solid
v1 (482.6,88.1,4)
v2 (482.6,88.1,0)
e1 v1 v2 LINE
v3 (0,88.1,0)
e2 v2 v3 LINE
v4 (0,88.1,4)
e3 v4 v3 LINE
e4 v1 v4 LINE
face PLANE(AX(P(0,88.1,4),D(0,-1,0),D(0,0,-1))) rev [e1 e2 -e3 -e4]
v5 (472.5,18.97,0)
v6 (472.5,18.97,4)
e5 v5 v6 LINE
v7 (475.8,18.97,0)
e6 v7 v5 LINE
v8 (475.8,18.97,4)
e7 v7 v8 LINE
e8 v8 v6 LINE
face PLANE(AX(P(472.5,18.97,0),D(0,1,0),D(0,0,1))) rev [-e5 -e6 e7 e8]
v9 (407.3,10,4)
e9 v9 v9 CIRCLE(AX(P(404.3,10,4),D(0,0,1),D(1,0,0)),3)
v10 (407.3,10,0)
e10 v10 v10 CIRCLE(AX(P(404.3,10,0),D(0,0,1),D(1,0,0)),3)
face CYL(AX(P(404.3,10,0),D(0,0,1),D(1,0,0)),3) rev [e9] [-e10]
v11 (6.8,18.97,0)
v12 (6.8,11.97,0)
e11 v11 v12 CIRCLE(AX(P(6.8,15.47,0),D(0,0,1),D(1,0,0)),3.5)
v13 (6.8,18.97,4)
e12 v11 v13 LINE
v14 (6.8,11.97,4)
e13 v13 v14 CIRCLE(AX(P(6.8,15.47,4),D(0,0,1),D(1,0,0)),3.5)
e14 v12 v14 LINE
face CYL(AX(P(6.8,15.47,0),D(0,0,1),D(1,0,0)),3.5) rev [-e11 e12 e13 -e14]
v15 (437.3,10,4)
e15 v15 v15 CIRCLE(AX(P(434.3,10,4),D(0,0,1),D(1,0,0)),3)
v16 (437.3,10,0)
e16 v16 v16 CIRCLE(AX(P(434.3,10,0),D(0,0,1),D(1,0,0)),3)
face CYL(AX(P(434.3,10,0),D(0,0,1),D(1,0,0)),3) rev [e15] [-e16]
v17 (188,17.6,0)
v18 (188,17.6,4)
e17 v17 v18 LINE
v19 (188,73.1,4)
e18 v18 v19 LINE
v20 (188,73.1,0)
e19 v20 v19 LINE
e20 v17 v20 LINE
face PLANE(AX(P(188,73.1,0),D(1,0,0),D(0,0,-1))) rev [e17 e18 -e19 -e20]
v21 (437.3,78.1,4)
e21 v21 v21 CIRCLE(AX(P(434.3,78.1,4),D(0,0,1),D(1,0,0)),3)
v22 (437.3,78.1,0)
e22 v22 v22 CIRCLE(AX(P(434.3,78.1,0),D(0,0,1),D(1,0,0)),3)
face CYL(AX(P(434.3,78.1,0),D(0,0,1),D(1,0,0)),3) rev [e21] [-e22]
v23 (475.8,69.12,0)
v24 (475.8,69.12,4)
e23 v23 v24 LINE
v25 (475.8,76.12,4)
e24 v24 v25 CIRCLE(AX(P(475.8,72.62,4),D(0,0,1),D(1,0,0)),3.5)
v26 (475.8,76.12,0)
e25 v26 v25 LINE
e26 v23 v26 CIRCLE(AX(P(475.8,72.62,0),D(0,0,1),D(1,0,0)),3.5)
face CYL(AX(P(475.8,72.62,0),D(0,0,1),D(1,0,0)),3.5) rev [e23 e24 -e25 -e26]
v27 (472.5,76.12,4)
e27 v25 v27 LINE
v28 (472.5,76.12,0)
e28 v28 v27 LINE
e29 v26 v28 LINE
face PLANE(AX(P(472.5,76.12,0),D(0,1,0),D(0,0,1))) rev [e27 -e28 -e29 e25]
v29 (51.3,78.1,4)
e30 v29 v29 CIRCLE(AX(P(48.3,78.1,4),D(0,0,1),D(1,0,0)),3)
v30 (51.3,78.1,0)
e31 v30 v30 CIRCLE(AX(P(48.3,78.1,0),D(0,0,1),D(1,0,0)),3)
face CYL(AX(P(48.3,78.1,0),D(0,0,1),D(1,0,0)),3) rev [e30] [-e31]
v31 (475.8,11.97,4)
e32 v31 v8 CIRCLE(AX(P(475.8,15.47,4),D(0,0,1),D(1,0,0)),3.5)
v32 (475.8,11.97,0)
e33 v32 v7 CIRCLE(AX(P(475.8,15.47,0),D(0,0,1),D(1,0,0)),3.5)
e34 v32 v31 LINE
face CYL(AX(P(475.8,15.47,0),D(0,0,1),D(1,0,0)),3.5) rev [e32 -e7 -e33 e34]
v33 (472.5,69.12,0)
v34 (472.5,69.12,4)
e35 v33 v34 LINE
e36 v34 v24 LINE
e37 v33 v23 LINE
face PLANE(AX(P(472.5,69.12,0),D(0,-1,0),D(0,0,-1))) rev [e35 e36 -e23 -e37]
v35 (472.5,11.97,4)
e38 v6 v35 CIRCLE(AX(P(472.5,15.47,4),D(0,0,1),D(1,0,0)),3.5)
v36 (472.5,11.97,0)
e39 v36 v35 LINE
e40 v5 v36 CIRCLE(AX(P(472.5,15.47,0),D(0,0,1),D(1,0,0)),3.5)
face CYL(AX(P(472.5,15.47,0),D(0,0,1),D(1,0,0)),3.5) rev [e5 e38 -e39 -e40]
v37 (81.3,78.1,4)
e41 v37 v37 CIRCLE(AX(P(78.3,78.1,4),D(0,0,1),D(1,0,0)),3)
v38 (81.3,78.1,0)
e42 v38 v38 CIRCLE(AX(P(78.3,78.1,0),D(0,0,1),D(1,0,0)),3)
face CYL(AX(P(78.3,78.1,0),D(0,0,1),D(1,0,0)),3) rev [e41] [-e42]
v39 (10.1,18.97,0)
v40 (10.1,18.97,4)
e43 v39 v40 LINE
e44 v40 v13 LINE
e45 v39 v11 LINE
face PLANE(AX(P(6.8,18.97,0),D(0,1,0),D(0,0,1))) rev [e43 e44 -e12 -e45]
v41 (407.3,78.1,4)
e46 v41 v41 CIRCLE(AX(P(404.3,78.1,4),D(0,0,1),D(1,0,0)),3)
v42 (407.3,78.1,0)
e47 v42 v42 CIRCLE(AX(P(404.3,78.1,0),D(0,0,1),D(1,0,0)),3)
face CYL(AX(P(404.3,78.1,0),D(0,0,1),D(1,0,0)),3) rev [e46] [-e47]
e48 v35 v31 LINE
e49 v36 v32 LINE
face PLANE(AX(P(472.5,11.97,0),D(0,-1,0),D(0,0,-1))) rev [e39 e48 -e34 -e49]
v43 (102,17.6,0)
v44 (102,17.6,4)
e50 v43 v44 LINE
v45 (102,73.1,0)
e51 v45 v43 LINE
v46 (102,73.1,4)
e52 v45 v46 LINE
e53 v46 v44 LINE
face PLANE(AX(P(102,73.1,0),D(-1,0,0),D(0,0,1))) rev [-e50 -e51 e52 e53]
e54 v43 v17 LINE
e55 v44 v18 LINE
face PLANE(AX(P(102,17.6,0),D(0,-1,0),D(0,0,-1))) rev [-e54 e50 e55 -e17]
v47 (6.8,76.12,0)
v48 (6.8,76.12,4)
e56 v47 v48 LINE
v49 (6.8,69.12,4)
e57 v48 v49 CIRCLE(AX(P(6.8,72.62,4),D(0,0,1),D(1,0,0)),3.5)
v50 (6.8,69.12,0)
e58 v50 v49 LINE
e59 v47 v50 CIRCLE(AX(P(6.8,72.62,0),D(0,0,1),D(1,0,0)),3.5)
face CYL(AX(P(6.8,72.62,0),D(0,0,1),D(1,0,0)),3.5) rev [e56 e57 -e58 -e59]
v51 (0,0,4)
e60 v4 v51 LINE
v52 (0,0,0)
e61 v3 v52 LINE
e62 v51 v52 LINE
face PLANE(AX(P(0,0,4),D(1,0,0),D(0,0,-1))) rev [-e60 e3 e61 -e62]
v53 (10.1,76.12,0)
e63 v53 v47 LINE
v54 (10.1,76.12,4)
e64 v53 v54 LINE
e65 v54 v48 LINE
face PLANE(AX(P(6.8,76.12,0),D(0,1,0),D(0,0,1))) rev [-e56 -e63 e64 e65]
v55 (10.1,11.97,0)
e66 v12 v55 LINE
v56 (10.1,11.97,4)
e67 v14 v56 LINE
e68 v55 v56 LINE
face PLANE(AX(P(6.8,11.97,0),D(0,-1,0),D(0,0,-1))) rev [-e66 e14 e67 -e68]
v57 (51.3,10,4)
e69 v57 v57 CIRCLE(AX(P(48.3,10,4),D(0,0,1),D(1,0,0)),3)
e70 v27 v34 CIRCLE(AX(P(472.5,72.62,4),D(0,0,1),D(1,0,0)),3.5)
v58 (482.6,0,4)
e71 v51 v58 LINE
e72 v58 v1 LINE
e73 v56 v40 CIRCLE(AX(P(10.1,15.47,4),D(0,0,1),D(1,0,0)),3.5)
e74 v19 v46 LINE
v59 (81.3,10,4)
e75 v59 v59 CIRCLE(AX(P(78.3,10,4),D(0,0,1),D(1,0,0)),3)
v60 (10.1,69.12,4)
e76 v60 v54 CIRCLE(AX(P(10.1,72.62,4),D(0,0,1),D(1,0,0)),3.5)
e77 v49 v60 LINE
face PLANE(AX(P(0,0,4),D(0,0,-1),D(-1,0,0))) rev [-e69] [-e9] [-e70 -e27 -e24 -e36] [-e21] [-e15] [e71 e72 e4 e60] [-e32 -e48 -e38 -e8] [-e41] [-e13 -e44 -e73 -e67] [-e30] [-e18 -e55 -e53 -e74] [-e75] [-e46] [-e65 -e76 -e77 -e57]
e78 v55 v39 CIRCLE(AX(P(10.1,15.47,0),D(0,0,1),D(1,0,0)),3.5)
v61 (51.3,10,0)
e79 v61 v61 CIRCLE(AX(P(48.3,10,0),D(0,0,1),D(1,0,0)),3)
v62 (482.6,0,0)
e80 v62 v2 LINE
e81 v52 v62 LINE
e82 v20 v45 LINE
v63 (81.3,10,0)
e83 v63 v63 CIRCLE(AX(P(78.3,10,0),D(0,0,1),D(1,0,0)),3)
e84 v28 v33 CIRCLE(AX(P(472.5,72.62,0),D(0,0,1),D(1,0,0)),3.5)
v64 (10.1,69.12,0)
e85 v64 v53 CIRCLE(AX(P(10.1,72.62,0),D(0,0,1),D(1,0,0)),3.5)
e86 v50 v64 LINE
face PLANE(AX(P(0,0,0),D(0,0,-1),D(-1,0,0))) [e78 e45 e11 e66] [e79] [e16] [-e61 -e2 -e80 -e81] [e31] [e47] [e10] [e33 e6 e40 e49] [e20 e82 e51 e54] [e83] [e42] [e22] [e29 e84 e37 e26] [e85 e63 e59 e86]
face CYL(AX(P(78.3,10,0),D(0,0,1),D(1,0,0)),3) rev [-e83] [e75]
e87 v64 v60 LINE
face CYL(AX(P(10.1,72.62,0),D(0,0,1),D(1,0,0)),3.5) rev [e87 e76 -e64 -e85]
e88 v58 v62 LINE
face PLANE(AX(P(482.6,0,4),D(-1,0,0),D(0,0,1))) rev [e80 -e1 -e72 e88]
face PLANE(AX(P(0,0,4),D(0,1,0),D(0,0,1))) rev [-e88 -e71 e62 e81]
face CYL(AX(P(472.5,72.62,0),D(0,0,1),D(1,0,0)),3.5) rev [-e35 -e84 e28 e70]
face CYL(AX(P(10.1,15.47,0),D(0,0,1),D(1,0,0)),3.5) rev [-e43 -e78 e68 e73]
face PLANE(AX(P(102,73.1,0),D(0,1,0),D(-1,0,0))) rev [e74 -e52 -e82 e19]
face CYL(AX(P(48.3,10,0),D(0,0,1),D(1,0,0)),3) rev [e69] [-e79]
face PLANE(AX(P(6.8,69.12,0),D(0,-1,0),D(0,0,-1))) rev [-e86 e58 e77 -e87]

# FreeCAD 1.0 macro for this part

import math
import FreeCAD as App
import Part
import Sketcher
from FreeCAD import Vector
Q = App.Units.Quantity

doc = App.newDocument("Part")
params = doc.addObject("Spreadsheet::Sheet", "Params")
for row, (alias, value) in enumerate([
    ("sketch1_width", "482.6 mm"),
    ("sketch1_height", "88.1 mm"),
    ("pad1_length", "4 mm"),
    ("sketch2_radius", "3.5 mm"),
    ("sketch2_width", "3.3 mm"),
    ("sketch3_diameter", "6 mm"),
    ("sketch4_width", "86 mm"),
    ("sketch4_height", "55.5 mm"),
], start=1):
    params.set(f"A{row}", alias)
    params.set(f"B{row}", "=" + value)
    params.setAlias(f"B{row}", alias)

body = doc.addObject("PartDesign::Body", "Body")

# Sketch on XY plane
sketch1 = body.newObject("Sketcher::SketchObject", "Sketch")
sketch1.AttachmentSupport = (doc.getObject("XY_Plane"), [""])
sketch1.MapMode = "FlatFace"
sketch1.addGeometry([
    Part.LineSegment(Vector(0, 88.1, 0), Vector(0, 0, 0)),
    Part.LineSegment(Vector(0, 0, 0), Vector(482.6, 0, 0)),
    Part.LineSegment(Vector(482.6, 0, 0), Vector(482.6, 88.1, 0)),
    Part.LineSegment(Vector(482.6, 88.1, 0), Vector(0, 88.1, 0)),
], False)
sketch1.addConstraint([
    Sketcher.Constraint("Coincident", 0, 2, 1, 1),
    Sketcher.Constraint("Coincident", 1, 2, 2, 1),
    Sketcher.Constraint("Coincident", 2, 2, 3, 1),
    Sketcher.Constraint("Coincident", 3, 2, 0, 1),
    Sketcher.Constraint("Vertical", 0),
    Sketcher.Constraint("Horizontal", 1),
    Sketcher.Constraint("Vertical", 2),
    Sketcher.Constraint("Horizontal", 3),
    Sketcher.Constraint("Coincident", 0, 2, -1, 1),
    Sketcher.Constraint("DistanceX", 1, 1, 1, 2, Q("482.6 mm")),
    Sketcher.Constraint("DistanceY", 0, 2, 0, 1, Q("88.1 mm")),
])
sketch1.setExpression("Constraints[9]", "Params.sketch1_width")
sketch1.setExpression("Constraints[10]", "Params.sketch1_height")
pad1 = body.newObject("PartDesign::Pad", "Pad")
pad1.Profile = sketch1
pad1.setExpression("Length", "Params.pad1_length")

# Sketch on XY plane
sketch2 = body.newObject("Sketcher::SketchObject", "Sketch001")
sketch2.AttachmentSupport = (doc.getObject("XY_Plane"), [""])
sketch2.MapMode = "FlatFace"
sketch2.AttachmentOffset = App.Placement(Vector(0, 0, 4), App.Rotation())
sketch2.addGeometry([
    Part.LineSegment(Vector(10.1, 76.12, 0), Vector(6.8, 76.12, 0)),  # 0
    Part.ArcOfCircle(Part.Circle(Vector(6.8, 72.62, 0), Vector(0, 0, 1), 3.5), math.radians(90), math.radians(270)),  # 1
    Part.LineSegment(Vector(6.8, 69.12, 0), Vector(10.1, 69.12, 0)),  # 2
    Part.ArcOfCircle(Part.Circle(Vector(10.1, 72.62, 0), Vector(0, 0, 1), 3.5), math.radians(-90), math.radians(90)),  # 3
    Part.LineSegment(Vector(475.8, 76.12, 0), Vector(472.5, 76.12, 0)),  # 4
    Part.ArcOfCircle(Part.Circle(Vector(472.5, 72.62, 0), Vector(0, 0, 1), 3.5), math.radians(90), math.radians(270)),  # 5
    Part.LineSegment(Vector(472.5, 69.12, 0), Vector(475.8, 69.12, 0)),  # 6
    Part.ArcOfCircle(Part.Circle(Vector(475.8, 72.62, 0), Vector(0, 0, 1), 3.5), math.radians(-90), math.radians(90)),  # 7
    Part.LineSegment(Vector(475.8, 18.97, 0), Vector(472.5, 18.97, 0)),  # 8
    Part.ArcOfCircle(Part.Circle(Vector(472.5, 15.47, 0), Vector(0, 0, 1), 3.5), math.radians(90), math.radians(270)),  # 9
    Part.LineSegment(Vector(472.5, 11.97, 0), Vector(475.8, 11.97, 0)),  # 10
    Part.ArcOfCircle(Part.Circle(Vector(475.8, 15.47, 0), Vector(0, 0, 1), 3.5), math.radians(-90), math.radians(90)),  # 11
    Part.LineSegment(Vector(10.1, 18.97, 0), Vector(6.8, 18.97, 0)),  # 12
    Part.ArcOfCircle(Part.Circle(Vector(6.8, 15.47, 0), Vector(0, 0, 1), 3.5), math.radians(90), math.radians(270)),  # 13
    Part.LineSegment(Vector(6.8, 11.97, 0), Vector(10.1, 11.97, 0)),  # 14
    Part.ArcOfCircle(Part.Circle(Vector(10.1, 15.47, 0), Vector(0, 0, 1), 3.5), math.radians(-90), math.radians(90)),  # 15
], False)
sketch2.addConstraint([
    Sketcher.Constraint("Tangent", 0, 2, 1, 1),
    Sketcher.Constraint("Tangent", 1, 2, 2, 1),
    Sketcher.Constraint("Tangent", 2, 2, 3, 1),
    Sketcher.Constraint("Tangent", 3, 2, 0, 1),
    Sketcher.Constraint("Tangent", 4, 2, 5, 1),
    Sketcher.Constraint("Tangent", 5, 2, 6, 1),
    Sketcher.Constraint("Tangent", 6, 2, 7, 1),
    Sketcher.Constraint("Tangent", 7, 2, 4, 1),
    Sketcher.Constraint("Tangent", 8, 2, 9, 1),
    Sketcher.Constraint("Tangent", 9, 2, 10, 1),
    Sketcher.Constraint("Tangent", 10, 2, 11, 1),
    Sketcher.Constraint("Tangent", 11, 2, 8, 1),
    Sketcher.Constraint("Tangent", 12, 2, 13, 1),
    Sketcher.Constraint("Tangent", 13, 2, 14, 1),
    Sketcher.Constraint("Tangent", 14, 2, 15, 1),
    Sketcher.Constraint("Tangent", 15, 2, 12, 1),
    Sketcher.Constraint("Horizontal", 0),
    Sketcher.Constraint("Horizontal", 2),
    Sketcher.Constraint("Horizontal", 4),
    Sketcher.Constraint("Horizontal", 6),
    Sketcher.Constraint("Horizontal", 8),
    Sketcher.Constraint("Horizontal", 10),
    Sketcher.Constraint("Horizontal", 12),
    Sketcher.Constraint("Horizontal", 14),
    Sketcher.Constraint("Equal", 3, 5),
    Sketcher.Constraint("Equal", 7, 9),
    Sketcher.Constraint("Equal", 11, 13),
    Sketcher.Constraint("Horizontal", 3, 3, 5, 3),
    Sketcher.Constraint("Horizontal", 11, 3, 13, 3),
    Sketcher.Constraint("Vertical", 5, 3, 9, 3),
    Sketcher.Constraint("Vertical", 7, 3, 11, 3),
    Sketcher.Constraint("Vertical", 1, 3, 13, 3),
    Sketcher.Constraint("Vertical", 3, 3, 15, 3),
    Sketcher.Constraint("Equal", 2, 4),
    Sketcher.Constraint("Radius", 1, Q("3.5 mm")),
    Sketcher.Constraint("DistanceX", 0, 2, 0, 1, Q("3.3 mm")),
    Sketcher.Constraint("DistanceX", 1, 3, 7, 3, Q("469 mm")),
    Sketcher.Constraint("DistanceX", -1, 1, 1, 3, Q("6.8 mm")),
    Sketcher.Constraint("DistanceY", -1, 1, 1, 3, Q("72.62 mm")),
    Sketcher.Constraint("DistanceY", -1, 1, 9, 3, Q("15.47 mm")),
])
sketch2.setExpression("Constraints[34]", "Params.sketch2_radius")
sketch2.setExpression("Constraints[35]", "Params.sketch2_width")
pocket1 = body.newObject("PartDesign::Pocket", "Pocket")
pocket1.Profile = sketch2
pocket1.Type = "ThroughAll"

# Sketch on XY plane
sketch3 = body.newObject("Sketcher::SketchObject", "Sketch002")
sketch3.AttachmentSupport = (doc.getObject("XY_Plane"), [""])
sketch3.MapMode = "FlatFace"
sketch3.AttachmentOffset = App.Placement(Vector(0, 0, 4), App.Rotation())
sketch3.addGeometry([
    Part.Circle(Vector(78.3, 78.1, 0), Vector(0, 0, 1), 3),  # 0
    Part.Circle(Vector(404.3, 78.1, 0), Vector(0, 0, 1), 3),  # 1
    Part.Circle(Vector(404.3, 10, 0), Vector(0, 0, 1), 3),  # 2
    Part.Circle(Vector(78.3, 10, 0), Vector(0, 0, 1), 3),  # 3
    Part.Circle(Vector(48.3, 78.1, 0), Vector(0, 0, 1), 3),  # 4
    Part.Circle(Vector(434.3, 78.1, 0), Vector(0, 0, 1), 3),  # 5
    Part.Circle(Vector(434.3, 10, 0), Vector(0, 0, 1), 3),  # 6
    Part.Circle(Vector(48.3, 10, 0), Vector(0, 0, 1), 3),  # 7
], False)
sketch3.addConstraint([
    Sketcher.Constraint("Equal", 0, 1),
    Sketcher.Constraint("Equal", 1, 2),
    Sketcher.Constraint("Equal", 2, 3),
    Sketcher.Constraint("Equal", 3, 4),
    Sketcher.Constraint("Equal", 4, 5),
    Sketcher.Constraint("Equal", 5, 6),
    Sketcher.Constraint("Equal", 6, 7),
    Sketcher.Constraint("Horizontal", 0, 3, 1, 3),
    Sketcher.Constraint("Horizontal", 2, 3, 3, 3),
    Sketcher.Constraint("Horizontal", 1, 3, 4, 3),
    Sketcher.Constraint("Horizontal", 4, 3, 5, 3),
    Sketcher.Constraint("Horizontal", 3, 3, 6, 3),
    Sketcher.Constraint("Horizontal", 6, 3, 7, 3),
    Sketcher.Constraint("Vertical", 1, 3, 2, 3),
    Sketcher.Constraint("Vertical", 0, 3, 3, 3),
    Sketcher.Constraint("Vertical", 5, 3, 6, 3),
    Sketcher.Constraint("Vertical", 4, 3, 7, 3),
    Sketcher.Constraint("Diameter", 0, Q("6 mm")),
    Sketcher.Constraint("DistanceY", -1, 1, 2, 3, Q("10 mm")),
    Sketcher.Constraint("DistanceX", 0, 3, 1, 3, Q("326 mm")),
    Sketcher.Constraint("DistanceX", 4, 3, 0, 3, Q("30 mm")),
    Sketcher.Constraint("DistanceX", 1, 3, 5, 3, Q("30 mm")),
    Sketcher.Constraint("DistanceX", -1, 1, 0, 3, Q("78.3 mm")),
    Sketcher.Constraint("DistanceY", -1, 1, 0, 3, Q("78.1 mm")),
])
sketch3.setExpression("Constraints[17]", "Params.sketch3_diameter")
pocket2 = body.newObject("PartDesign::Pocket", "Pocket001")
pocket2.Profile = sketch3
pocket2.Type = "ThroughAll"

# Sketch on XY plane
sketch4 = body.newObject("Sketcher::SketchObject", "Sketch003")
sketch4.AttachmentSupport = (doc.getObject("XY_Plane"), [""])
sketch4.MapMode = "FlatFace"
sketch4.AttachmentOffset = App.Placement(Vector(0, 0, 4), App.Rotation())
sketch4.addGeometry([
    Part.LineSegment(Vector(102, 73.1, 0), Vector(102, 17.6, 0)),
    Part.LineSegment(Vector(102, 17.6, 0), Vector(188, 17.6, 0)),
    Part.LineSegment(Vector(188, 17.6, 0), Vector(188, 73.1, 0)),
    Part.LineSegment(Vector(188, 73.1, 0), Vector(102, 73.1, 0)),
], False)
sketch4.addConstraint([
    Sketcher.Constraint("Coincident", 0, 2, 1, 1),
    Sketcher.Constraint("Coincident", 1, 2, 2, 1),
    Sketcher.Constraint("Coincident", 2, 2, 3, 1),
    Sketcher.Constraint("Coincident", 3, 2, 0, 1),
    Sketcher.Constraint("Vertical", 0),
    Sketcher.Constraint("Horizontal", 1),
    Sketcher.Constraint("Vertical", 2),
    Sketcher.Constraint("Horizontal", 3),
    Sketcher.Constraint("DistanceX", 1, 1, 1, 2, Q("86 mm")),
    Sketcher.Constraint("DistanceY", 0, 2, 0, 1, Q("55.5 mm")),
    Sketcher.Constraint("DistanceX", -1, 1, 0, 2, Q("102 mm")),
    Sketcher.Constraint("DistanceY", -1, 1, 0, 2, Q("17.6 mm")),
])
sketch4.setExpression("Constraints[8]", "Params.sketch4_width")
sketch4.setExpression("Constraints[9]", "Params.sketch4_height")
pocket3 = body.newObject("PartDesign::Pocket", "Pocket002")
pocket3.Profile = sketch4
pocket3.Type = "ThroughAll"

doc.recompute()
